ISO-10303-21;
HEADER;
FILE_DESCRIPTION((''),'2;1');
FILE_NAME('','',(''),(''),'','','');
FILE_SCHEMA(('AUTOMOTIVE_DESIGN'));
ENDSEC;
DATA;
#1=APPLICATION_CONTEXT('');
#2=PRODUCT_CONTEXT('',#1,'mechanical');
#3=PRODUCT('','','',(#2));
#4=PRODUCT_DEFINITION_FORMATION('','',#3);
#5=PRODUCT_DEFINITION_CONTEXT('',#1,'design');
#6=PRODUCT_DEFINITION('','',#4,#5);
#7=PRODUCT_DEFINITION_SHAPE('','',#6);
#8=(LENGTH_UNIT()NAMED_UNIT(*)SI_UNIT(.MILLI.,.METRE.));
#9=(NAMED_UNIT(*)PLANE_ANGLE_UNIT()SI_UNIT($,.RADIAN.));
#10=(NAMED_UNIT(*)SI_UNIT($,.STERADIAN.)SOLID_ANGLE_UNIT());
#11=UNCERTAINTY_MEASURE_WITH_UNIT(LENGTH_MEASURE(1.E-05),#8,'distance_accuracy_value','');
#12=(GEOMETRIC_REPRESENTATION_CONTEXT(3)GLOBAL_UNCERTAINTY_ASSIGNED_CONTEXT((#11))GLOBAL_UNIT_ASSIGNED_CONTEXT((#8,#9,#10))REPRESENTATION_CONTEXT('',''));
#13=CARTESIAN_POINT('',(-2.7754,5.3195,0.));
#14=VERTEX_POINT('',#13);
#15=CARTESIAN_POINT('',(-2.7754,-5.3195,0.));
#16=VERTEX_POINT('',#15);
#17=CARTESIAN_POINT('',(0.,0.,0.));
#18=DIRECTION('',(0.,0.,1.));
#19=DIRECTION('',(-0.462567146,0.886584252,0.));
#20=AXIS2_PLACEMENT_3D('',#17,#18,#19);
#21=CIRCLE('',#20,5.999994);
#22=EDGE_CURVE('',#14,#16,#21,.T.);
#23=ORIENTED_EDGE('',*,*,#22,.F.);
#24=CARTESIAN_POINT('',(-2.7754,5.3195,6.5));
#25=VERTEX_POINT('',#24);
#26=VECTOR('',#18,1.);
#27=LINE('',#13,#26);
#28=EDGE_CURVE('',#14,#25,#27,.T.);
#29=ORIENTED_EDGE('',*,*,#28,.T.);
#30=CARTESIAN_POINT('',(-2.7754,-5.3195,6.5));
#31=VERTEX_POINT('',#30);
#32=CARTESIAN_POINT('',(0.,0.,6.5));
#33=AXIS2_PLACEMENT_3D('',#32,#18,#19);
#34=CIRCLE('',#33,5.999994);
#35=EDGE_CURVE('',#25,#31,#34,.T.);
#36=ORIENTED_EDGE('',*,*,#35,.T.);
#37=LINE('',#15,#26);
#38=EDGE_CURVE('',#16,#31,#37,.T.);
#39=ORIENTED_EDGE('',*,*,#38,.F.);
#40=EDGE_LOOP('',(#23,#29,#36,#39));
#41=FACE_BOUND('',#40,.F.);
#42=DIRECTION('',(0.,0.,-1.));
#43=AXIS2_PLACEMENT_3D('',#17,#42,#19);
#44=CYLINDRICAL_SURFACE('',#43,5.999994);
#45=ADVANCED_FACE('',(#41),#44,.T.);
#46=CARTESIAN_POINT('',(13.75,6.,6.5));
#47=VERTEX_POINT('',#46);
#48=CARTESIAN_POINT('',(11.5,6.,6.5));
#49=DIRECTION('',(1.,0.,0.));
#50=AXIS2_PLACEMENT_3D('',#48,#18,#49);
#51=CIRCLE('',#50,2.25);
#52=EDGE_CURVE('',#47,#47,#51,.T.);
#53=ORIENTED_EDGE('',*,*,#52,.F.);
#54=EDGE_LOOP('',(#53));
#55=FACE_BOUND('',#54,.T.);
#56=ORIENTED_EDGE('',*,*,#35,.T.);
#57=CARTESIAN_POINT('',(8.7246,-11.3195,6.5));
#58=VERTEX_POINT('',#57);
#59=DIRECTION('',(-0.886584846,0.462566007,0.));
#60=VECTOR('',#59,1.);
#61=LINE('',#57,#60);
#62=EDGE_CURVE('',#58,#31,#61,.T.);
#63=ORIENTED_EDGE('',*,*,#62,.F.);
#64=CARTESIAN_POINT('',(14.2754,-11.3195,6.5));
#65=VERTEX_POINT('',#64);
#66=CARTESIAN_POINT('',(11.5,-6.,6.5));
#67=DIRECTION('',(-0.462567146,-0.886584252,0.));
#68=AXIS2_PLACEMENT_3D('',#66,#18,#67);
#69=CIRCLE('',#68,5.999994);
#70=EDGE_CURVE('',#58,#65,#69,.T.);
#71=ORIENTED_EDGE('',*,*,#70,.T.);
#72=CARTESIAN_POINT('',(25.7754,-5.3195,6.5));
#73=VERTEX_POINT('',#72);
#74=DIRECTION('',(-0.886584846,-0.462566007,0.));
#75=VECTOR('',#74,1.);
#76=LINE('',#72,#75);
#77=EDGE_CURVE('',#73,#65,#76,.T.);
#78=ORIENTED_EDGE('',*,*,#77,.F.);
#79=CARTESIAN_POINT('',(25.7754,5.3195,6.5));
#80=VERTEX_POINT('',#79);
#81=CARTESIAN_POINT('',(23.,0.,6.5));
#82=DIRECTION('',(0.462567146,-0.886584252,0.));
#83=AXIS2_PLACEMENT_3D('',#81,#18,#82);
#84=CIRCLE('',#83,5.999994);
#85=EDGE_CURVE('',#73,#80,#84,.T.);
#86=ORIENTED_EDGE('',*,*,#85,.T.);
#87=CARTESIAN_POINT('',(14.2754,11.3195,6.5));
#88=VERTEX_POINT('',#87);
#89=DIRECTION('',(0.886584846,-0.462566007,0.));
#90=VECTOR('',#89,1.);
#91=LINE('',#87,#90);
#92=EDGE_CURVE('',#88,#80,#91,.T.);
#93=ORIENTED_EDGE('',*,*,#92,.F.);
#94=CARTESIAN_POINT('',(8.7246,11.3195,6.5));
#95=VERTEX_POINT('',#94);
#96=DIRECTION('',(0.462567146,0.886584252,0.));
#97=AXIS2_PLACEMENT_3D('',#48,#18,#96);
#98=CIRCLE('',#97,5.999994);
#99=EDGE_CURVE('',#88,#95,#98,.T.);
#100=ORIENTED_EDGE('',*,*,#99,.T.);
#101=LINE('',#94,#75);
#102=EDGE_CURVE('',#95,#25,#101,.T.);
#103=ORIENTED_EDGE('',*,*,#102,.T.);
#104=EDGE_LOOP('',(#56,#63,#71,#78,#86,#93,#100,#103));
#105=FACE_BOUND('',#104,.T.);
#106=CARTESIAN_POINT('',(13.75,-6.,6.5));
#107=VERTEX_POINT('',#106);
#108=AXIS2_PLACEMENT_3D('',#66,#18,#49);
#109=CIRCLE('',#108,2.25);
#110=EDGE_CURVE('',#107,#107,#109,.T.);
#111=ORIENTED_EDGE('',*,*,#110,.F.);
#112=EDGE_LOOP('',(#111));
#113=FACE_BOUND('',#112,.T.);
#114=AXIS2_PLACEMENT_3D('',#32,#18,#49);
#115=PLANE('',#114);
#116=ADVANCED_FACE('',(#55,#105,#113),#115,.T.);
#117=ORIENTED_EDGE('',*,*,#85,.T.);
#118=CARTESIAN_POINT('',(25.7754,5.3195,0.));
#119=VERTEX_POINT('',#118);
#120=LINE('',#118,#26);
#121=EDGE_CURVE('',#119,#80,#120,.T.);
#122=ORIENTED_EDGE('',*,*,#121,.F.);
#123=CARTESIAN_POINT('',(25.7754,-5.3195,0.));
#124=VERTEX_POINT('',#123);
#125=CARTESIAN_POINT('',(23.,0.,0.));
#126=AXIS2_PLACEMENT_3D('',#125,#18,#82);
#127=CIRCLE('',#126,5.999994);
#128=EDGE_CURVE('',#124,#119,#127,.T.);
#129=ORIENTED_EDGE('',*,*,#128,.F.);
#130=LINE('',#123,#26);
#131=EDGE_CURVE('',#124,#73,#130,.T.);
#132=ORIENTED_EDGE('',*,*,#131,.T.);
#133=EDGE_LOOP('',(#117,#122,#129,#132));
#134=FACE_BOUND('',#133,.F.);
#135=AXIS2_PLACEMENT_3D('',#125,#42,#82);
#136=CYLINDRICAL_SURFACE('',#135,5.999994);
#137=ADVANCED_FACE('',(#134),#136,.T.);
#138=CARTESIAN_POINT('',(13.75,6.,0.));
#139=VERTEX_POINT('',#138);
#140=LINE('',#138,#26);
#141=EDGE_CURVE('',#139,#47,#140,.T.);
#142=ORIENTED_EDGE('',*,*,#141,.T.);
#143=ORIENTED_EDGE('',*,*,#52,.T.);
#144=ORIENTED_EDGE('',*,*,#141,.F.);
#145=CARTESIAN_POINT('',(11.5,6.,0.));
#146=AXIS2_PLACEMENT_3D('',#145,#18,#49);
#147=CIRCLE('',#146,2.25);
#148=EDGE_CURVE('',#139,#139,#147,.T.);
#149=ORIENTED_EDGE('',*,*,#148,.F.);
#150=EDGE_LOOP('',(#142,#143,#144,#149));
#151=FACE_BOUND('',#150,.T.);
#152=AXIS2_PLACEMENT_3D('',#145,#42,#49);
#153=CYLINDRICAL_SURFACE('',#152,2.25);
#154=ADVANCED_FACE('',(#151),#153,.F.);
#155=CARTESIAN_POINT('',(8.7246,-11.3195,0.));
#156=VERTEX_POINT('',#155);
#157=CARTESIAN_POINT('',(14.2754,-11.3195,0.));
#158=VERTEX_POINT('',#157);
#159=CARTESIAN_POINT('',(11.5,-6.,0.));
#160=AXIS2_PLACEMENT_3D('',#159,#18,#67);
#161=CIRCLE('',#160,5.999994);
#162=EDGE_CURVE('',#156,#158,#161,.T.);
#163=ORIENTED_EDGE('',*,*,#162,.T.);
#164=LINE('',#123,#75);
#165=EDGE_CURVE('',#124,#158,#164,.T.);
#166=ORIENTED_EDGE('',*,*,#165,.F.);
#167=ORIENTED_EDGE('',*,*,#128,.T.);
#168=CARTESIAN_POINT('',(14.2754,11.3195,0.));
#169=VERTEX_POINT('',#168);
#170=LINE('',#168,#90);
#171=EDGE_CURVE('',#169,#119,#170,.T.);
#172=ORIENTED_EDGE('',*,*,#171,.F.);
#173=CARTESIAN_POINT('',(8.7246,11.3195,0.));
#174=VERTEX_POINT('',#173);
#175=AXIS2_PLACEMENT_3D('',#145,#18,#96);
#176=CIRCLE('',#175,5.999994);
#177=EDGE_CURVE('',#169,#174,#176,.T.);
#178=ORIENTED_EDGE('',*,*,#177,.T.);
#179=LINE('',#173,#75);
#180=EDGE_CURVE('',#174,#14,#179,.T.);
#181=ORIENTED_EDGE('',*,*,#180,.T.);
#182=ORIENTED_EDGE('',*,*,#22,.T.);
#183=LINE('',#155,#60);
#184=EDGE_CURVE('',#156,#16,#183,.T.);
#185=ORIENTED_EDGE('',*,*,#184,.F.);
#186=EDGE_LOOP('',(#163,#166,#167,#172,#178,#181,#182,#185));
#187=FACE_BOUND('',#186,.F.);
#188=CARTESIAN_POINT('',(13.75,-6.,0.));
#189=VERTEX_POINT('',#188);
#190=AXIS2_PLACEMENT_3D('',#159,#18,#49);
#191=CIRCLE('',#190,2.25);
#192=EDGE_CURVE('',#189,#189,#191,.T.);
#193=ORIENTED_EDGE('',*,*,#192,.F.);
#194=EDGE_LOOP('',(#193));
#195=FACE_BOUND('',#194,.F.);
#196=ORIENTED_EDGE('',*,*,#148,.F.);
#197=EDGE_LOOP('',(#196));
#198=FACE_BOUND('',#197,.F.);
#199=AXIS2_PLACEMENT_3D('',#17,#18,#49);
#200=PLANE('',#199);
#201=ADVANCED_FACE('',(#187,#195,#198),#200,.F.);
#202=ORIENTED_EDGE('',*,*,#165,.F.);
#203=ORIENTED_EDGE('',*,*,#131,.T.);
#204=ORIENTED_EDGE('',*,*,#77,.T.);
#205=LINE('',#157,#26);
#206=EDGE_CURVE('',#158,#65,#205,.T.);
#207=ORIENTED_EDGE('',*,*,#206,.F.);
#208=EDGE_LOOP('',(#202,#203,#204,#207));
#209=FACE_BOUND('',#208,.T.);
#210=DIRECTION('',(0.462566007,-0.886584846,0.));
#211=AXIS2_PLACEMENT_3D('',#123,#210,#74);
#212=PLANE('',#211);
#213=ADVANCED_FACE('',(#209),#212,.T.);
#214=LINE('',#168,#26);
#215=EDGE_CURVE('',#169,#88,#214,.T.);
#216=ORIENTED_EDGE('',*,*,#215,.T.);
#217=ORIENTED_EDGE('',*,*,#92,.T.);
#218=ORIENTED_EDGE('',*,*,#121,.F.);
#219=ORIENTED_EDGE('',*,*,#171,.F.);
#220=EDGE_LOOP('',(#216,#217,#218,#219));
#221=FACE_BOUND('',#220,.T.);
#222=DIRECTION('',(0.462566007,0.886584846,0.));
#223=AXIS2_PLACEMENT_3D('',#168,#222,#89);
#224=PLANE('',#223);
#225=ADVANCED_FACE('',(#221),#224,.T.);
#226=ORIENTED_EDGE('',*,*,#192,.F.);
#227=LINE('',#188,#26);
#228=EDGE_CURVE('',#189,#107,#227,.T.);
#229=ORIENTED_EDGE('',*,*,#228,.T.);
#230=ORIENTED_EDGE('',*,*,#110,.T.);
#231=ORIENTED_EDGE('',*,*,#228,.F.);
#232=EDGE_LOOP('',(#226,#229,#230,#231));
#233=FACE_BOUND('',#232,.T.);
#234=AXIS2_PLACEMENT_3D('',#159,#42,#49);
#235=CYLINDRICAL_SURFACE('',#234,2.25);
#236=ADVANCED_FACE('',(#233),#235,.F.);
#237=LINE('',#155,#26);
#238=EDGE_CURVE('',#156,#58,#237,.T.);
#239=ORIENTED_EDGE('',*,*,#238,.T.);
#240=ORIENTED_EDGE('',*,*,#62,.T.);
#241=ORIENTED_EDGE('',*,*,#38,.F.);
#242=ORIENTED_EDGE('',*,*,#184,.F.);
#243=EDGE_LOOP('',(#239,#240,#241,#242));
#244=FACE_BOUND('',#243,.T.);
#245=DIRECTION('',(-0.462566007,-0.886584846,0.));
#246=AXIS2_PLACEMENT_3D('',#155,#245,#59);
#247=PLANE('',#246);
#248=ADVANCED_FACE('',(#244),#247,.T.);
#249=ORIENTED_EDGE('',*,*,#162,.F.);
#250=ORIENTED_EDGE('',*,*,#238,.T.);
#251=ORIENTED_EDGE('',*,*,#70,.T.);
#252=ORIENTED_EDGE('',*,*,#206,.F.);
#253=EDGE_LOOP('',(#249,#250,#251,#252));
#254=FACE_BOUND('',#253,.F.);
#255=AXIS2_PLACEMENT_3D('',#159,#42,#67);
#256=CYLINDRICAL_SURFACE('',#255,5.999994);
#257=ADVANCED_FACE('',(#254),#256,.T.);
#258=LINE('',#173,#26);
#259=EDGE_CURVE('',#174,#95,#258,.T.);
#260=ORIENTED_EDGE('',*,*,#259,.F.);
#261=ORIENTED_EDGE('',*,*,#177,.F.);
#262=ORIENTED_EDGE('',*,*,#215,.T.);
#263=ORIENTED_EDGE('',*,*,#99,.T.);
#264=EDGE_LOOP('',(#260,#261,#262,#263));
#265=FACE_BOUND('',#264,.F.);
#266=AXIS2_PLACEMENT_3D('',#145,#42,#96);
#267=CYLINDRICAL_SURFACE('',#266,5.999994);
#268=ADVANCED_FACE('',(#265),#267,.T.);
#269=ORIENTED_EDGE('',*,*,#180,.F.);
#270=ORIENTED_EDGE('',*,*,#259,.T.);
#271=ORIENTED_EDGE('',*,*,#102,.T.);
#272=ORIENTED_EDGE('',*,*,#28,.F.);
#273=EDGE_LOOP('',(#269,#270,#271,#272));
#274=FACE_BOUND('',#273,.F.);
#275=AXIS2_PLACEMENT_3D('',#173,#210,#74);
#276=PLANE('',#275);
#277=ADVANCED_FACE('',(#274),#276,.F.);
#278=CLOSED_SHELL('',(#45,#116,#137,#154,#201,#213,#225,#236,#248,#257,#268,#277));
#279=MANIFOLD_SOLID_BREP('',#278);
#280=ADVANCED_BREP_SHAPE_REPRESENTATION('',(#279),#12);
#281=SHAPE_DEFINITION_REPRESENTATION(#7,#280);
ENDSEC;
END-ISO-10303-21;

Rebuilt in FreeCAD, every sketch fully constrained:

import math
import FreeCAD as App
import Part
import Sketcher
from FreeCAD import Vector
Q = App.Units.Quantity

doc = App.newDocument("Part")
body = doc.addObject("PartDesign::Body", "Body")

sketch1 = doc.addObject("Sketcher::SketchObject", "Sketch")
body.addObject(sketch1)
sketch1.AttachmentSupport = (doc.XY_Plane, [""])
sketch1.MapMode = "FlatFace"
sketch1.addGeometry([
    Part.LineSegment(Vector(8.7246, 11.3195, 0), Vector(-2.7754, 5.3195, 0)),
    Part.ArcOfCircle(Part.Circle(Vector(0, 0, 0), Vector(0, 0, 1), 5.999994), math.radians(117.552885), math.radians(242.447115)),
    Part.LineSegment(Vector(-2.7754, -5.3195, 0), Vector(8.7246, -11.3195, 0)),
    Part.ArcOfCircle(Part.Circle(Vector(11.5, -6, 0), Vector(0, 0, 1), 5.999994), math.radians(-117.552885), math.radians(-62.447115)),
    Part.LineSegment(Vector(14.2754, -11.3195, 0), Vector(25.7754, -5.3195, 0)),
    Part.ArcOfCircle(Part.Circle(Vector(23, 0, 0), Vector(0, 0, 1), 5.999994), math.radians(-62.447115), math.radians(62.447115)),
    Part.LineSegment(Vector(25.7754, 5.3195, 0), Vector(14.2754, 11.3195, 0)),
    Part.ArcOfCircle(Part.Circle(Vector(11.5, 6, 0), Vector(0, 0, 1), 5.999994), math.radians(62.447115), math.radians(117.552885)),
    Part.Circle(Vector(11.5, -6, 0), Vector(0, 0, 1), 2.25),
    Part.Circle(Vector(11.5, 6, 0), Vector(0, 0, 1), 2.25),
], False)
sketch1.addConstraint([
    Sketcher.Constraint("Tangent", 0, 2, 1, 1),
    Sketcher.Constraint("Tangent", 1, 2, 2, 1),
    Sketcher.Constraint("Tangent", 2, 2, 3, 1),
    Sketcher.Constraint("Tangent", 3, 2, 4, 1),
    Sketcher.Constraint("Tangent", 4, 2, 5, 1),
    Sketcher.Constraint("Tangent", 5, 2, 6, 1),
    Sketcher.Constraint("Tangent", 6, 2, 7, 1),
    Sketcher.Constraint("Tangent", 7, 2, 0, 1),
    Sketcher.Constraint("Coincident", 1, 3, -1, 1),
    Sketcher.Constraint("Coincident", 8, 3, 3, 3),
    Sketcher.Constraint("Coincident", 9, 3, 7, 3),
    Sketcher.Constraint("Equal", 1, 3),
    Sketcher.Constraint("Equal", 3, 5),
    Sketcher.Constraint("Equal", 5, 7),
    Sketcher.Constraint("Equal", 8, 9),
    Sketcher.Constraint("Symmetric", 3, 3, 7, 3, -1),
    Sketcher.Constraint("PointOnObject", 5, 3, -1),
    Sketcher.Constraint("Parallel", 0, 4),
    Sketcher.Constraint("Radius", 1, Q("6 mm")),
    Sketcher.Constraint("Diameter", 8, Q("4.5 mm")),
    Sketcher.Constraint("DistanceX", -1, 1, 5, 3, Q("23 mm")),
    Sketcher.Constraint("DistanceY", 3, 3, 7, 3, Q("12 mm")),
])
pad1 = doc.addObject("PartDesign::Pad", "Pad")
body.addObject(pad1)
pad1.Profile = sketch1
pad1.Length = 6.5

doc.recompute()
